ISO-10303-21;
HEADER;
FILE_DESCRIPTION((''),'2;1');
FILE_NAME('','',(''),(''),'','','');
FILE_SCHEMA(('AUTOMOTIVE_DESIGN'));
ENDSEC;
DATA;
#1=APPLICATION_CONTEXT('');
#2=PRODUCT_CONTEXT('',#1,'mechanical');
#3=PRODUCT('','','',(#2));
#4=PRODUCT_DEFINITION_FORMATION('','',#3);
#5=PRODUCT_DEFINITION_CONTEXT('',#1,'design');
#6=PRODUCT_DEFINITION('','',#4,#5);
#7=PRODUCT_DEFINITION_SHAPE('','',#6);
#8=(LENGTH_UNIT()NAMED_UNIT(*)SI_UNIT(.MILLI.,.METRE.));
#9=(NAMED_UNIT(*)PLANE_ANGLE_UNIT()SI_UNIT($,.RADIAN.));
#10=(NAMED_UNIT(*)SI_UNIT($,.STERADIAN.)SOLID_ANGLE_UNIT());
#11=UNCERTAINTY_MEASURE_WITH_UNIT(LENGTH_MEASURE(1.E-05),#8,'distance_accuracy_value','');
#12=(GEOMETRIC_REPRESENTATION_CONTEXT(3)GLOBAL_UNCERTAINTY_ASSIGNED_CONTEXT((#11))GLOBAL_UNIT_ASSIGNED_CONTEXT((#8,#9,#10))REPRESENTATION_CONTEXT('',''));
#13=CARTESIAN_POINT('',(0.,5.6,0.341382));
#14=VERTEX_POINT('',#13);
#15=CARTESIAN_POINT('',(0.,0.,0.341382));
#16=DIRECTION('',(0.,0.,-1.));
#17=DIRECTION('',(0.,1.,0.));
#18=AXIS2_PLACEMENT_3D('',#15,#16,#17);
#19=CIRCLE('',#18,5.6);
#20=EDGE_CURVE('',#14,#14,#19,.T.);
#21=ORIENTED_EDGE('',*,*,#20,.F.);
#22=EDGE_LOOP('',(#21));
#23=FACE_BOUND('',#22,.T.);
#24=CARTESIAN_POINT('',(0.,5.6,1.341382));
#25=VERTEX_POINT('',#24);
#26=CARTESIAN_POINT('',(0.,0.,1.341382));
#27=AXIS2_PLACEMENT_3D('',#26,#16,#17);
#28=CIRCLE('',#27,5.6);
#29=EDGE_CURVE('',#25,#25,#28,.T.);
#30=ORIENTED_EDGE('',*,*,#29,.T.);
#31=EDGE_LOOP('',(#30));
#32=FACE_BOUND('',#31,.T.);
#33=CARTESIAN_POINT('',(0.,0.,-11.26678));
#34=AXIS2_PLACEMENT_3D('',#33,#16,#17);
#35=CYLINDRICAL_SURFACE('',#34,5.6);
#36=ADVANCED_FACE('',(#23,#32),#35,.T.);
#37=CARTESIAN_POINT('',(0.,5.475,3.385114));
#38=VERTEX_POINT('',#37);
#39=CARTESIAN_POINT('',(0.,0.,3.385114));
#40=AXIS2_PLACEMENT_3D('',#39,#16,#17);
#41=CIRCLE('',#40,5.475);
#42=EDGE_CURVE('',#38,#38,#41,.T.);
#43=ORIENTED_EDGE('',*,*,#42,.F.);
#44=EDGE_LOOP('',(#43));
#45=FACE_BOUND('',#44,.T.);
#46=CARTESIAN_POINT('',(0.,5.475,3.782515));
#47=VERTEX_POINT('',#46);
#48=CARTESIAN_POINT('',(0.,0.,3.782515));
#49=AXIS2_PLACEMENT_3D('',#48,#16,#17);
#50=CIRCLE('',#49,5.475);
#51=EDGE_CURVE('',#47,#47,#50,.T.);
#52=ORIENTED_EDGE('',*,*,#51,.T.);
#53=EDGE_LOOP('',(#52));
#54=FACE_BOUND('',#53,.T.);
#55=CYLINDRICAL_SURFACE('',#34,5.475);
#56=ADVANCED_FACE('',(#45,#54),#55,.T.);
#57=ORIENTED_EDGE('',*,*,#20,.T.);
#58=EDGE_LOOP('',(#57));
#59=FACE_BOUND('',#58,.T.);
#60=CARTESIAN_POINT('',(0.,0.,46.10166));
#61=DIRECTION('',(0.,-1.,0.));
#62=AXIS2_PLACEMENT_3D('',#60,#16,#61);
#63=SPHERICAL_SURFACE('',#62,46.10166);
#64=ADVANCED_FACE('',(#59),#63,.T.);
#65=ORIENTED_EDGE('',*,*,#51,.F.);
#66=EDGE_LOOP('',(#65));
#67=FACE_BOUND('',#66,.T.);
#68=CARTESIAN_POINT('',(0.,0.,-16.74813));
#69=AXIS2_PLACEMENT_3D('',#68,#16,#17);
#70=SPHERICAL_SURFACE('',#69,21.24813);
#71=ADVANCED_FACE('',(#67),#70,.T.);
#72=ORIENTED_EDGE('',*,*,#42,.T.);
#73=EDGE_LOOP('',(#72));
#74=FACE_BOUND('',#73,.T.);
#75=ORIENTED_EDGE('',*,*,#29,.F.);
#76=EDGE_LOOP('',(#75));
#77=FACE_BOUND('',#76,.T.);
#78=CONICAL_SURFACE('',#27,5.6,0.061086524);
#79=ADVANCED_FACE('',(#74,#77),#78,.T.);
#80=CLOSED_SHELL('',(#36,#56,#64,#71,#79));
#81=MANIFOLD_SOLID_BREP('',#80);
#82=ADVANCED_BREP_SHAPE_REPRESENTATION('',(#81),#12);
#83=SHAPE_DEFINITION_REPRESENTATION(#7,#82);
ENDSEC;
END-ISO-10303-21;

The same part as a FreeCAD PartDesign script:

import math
import FreeCAD as App
import Part
import Sketcher

V = App.Vector
Q = App.Units.Quantity

doc = App.newDocument("Part")
body = doc.addObject("PartDesign::Body", "Body")

# Sketch on YZ plane
sketch1 = body.newObject("Sketcher::SketchObject", "Sketch")
sketch1.AttachmentSupport = (doc.getObject("YZ_Plane"), [""])
sketch1.MapMode = "FlatFace"
sketch1.addGeometry([
    Part.LineSegment(V(0, 4.5, 0), V(0, 0, 0)),  # 0
    Part.ArcOfCircle(Part.Circle(V(0, 46.10166, 0), V(0, 0, 1), 46.10166), math.radians(-90), math.radians(-83.023013)),  # 1
    Part.LineSegment(V(5.6, 0.341382, 0), V(5.6, 1.341382, 0)),  # 2
    Part.LineSegment(V(5.6, 1.341382, 0), V(5.475, 3.385114, 0)),  # 3
    Part.LineSegment(V(5.475, 3.385114, 0), V(5.475, 3.782515, 0)),  # 4
    Part.ArcOfCircle(Part.Circle(V(0, -16.74813, 0), V(0, 0, 1), 21.24813), math.radians(75.068163), math.radians(90)),  # 5
], False)
sketch1.addConstraint([
    Sketcher.Constraint("Coincident", 0, 2, 1, 1),
    Sketcher.Constraint("Coincident", 1, 2, 2, 1),
    Sketcher.Constraint("Coincident", 2, 2, 3, 1),
    Sketcher.Constraint("Coincident", 3, 2, 4, 1),
    Sketcher.Constraint("Coincident", 4, 2, 5, 1),
    Sketcher.Constraint("Coincident", 5, 2, 0, 1),
    Sketcher.Constraint("Vertical", 0),
    Sketcher.Constraint("Vertical", 2),
    Sketcher.Constraint("Vertical", 4),
    Sketcher.Constraint("Coincident", 0, 2, -1, 1),
    Sketcher.Constraint("PointOnObject", 1, 3, -2),
    Sketcher.Constraint("PointOnObject", 5, 3, -2),
    Sketcher.Constraint("DistanceY", 2, 1, 2, 2, Q("1 mm")),
    Sketcher.Constraint("DistanceY", 0, 2, 0, 1, Q("4.5 mm")),
    Sketcher.Constraint("Angle", 3, Q("93.5 deg")),
    Sketcher.Constraint("DistanceX", -1, 1, 1, 2, Q("5.6 mm")),
    Sketcher.Constraint("Radius", 1, Q("46.10166 mm")),
    Sketcher.Constraint("Radius", 5, Q("21.24813 mm")),
    Sketcher.Constraint("DistanceY", 4, 1, 4, 2, Q("0.397402 mm")),
])
revolution = body.newObject("PartDesign::Revolution", "Revolution")
revolution.Profile = sketch1
revolution.ReferenceAxis = (sketch1, ["V_Axis"])
revolution.Angle = 360

doc.recompute()
